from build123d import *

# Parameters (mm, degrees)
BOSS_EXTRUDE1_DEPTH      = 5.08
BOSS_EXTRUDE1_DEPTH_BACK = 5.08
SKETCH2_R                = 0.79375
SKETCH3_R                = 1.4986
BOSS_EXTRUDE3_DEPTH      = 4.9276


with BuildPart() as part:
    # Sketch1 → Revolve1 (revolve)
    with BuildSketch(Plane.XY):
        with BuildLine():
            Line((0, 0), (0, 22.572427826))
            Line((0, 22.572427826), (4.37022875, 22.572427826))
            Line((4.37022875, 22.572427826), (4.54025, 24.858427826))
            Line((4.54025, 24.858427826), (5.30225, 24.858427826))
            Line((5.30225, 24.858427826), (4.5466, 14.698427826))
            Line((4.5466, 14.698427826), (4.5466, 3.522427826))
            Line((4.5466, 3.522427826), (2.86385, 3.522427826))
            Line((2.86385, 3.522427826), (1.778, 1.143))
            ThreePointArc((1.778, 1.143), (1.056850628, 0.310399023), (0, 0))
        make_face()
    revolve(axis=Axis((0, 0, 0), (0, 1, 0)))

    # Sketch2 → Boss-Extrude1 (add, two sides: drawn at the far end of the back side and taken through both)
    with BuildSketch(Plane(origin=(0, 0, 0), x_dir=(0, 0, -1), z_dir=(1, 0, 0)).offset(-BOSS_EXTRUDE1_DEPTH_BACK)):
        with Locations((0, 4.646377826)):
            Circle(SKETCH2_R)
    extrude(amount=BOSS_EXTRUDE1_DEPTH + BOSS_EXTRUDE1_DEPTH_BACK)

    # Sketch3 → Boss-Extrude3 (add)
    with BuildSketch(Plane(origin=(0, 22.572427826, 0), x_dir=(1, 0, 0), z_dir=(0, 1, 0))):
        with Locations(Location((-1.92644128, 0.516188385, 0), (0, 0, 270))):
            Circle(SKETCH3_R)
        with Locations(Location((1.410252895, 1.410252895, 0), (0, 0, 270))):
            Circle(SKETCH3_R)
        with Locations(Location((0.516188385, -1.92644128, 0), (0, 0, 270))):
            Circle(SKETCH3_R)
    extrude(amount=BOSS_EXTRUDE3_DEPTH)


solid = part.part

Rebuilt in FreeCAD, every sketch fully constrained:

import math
import FreeCAD as App
import Part
import Sketcher
Q = App.Units.Quantity

doc = App.newDocument("Part")
body = doc.addObject("PartDesign::Body", "Body")

sketch1 = body.newObject("Sketcher::SketchObject", "Sketch")
sketch1.AttachmentSupport = (doc.getObject("XY_Plane"), [""])
sketch1.MapMode = "FlatFace"
sketch1.addGeometry([
    Part.LineSegment(App.Vector(0, 22.6, 0), App.Vector(0, 0, 0)),
    Part.ArcOfCircle(Part.Circle(App.Vector(0, 2, 0), App.Vector(0, 0, 1), 2), math.radians(-90), math.radians(-25)),
    Part.LineSegment(App.Vector(1.8, 1.1, 0), App.Vector(2.9, 3.5, 0)),
    Part.LineSegment(App.Vector(2.9, 3.5, 0), App.Vector(4.5, 3.5, 0)),
    Part.LineSegment(App.Vector(4.5, 3.5, 0), App.Vector(4.5, 14.7, 0)),
    Part.LineSegment(App.Vector(4.5, 14.7, 0), App.Vector(5.3, 24.9, 0)),
    Part.LineSegment(App.Vector(5.3, 24.9, 0), App.Vector(4.5, 24.9, 0)),
    Part.LineSegment(App.Vector(4.5, 24.9, 0), App.Vector(4.4, 22.6, 0)),
    Part.LineSegment(App.Vector(4.4, 22.6, 0), App.Vector(0, 22.6, 0)),
], False)
sketch1.addConstraint([
    Sketcher.Constraint("Coincident", 0, 2, 1, 1),
    Sketcher.Constraint("Tangent", 1, 2, 2, 1),
    Sketcher.Constraint("Coincident", 2, 2, 3, 1),
    Sketcher.Constraint("Coincident", 3, 2, 4, 1),
    Sketcher.Constraint("Coincident", 4, 2, 5, 1),
    Sketcher.Constraint("Coincident", 5, 2, 6, 1),
    Sketcher.Constraint("Coincident", 6, 2, 7, 1),
    Sketcher.Constraint("Coincident", 7, 2, 8, 1),
    Sketcher.Constraint("Coincident", 8, 2, 0, 1),
    Sketcher.Constraint("Vertical", 0),
    Sketcher.Constraint("Horizontal", 3),
    Sketcher.Constraint("Vertical", 4),
    Sketcher.Constraint("Horizontal", 6),
    Sketcher.Constraint("Horizontal", 8),
    Sketcher.Constraint("Coincident", 0, 2, -1, 1),
    Sketcher.Constraint("PointOnObject", 1, 3, -2),
    Sketcher.Constraint("Parallel", 5, 7),
    Sketcher.Constraint("DistanceX", 6, 2, 6, 1, Q("0.03 in")),
    Sketcher.Constraint("DistanceY", 4, 1, 4, 2, Q("0.44 in")),
    Sketcher.Constraint("DistanceY", 4, 2, 5, 2, Q("0.4 in")),
    Sketcher.Constraint("DistanceX", -1, 1, 1, 2, Q("0.07 in")),
    Sketcher.Constraint("DistanceY", 7, 2, 6, 2, Q("0.09 in")),
    Sketcher.Constraint("DistanceY", -1, 1, 1, 2, Q("0.045 in")),
    Sketcher.Constraint("DistanceX", -1, 1, 3, 2, Q("0.179 in")),
    Sketcher.Constraint("DistanceX", 2, 2, 5, 2, Q("0.096 in")),
    Sketcher.Constraint("DistanceX", 3, 1, 3, 2, 1.68275),
])
revolution = body.newObject("PartDesign::Revolution", "Revolution")
revolution.Profile = sketch1
revolution.ReferenceAxis = (sketch1, ["V_Axis"])
revolution.Angle = 360

sketch2 = body.newObject("Sketcher::SketchObject", "Sketch001")
sketch2.AttachmentSupport = (doc.getObject("YZ_Plane"), [""])
sketch2.MapMode = "FlatFace"
sketch2.addGeometry(Part.Circle(App.Vector(4.6, 0, 0), App.Vector(0, 0, 1), 0.8), False)
sketch2.addConstraint([
    Sketcher.Constraint("PointOnObject", 0, 3, -1),
    Sketcher.Constraint("Diameter", 0, Q("0.0625 in")),
    Sketcher.Constraint("DistanceX", -1, 1, 0, 3, 4.646378),
])
pad1 = body.newObject("PartDesign::Pad", "Pad")
pad1.Profile = sketch2
pad1.Type = "TwoLengths"
pad1.Length = Q("0.2 in")
pad1.Length2 = Q("0.2 in")

sketch3 = body.newObject("Sketcher::SketchObject", "Sketch002")
sketch3.AttachmentSupport = (doc.getObject("XZ_Plane"), [""])
sketch3.MapMode = "FlatFace"
sketch3.AttachmentOffset = App.Placement(App.Vector(0, 0, -22.572428), App.Rotation())
sketch3.addGeometry([
    Part.Circle(App.Vector(-1.9, -0.5, 0), App.Vector(0, 0, 1), 1.5),
    Part.Circle(App.Vector(1.4, -1.4, 0), App.Vector(0, 0, 1), 1.5),
    Part.Circle(App.Vector(0.5, 1.9, 0), App.Vector(0, 0, 1), 1.5),
], False)
sketch3.addConstraint([
    Sketcher.Constraint("Equal", 0, 1),
    Sketcher.Constraint("Equal", 1, 2),
    Sketcher.Constraint("Diameter", 0, Q("0.118 in")),
    Sketcher.Constraint("DistanceX", 0, 3, -1, 1, 1.926441),
    Sketcher.Constraint("DistanceY", 0, 3, -1, 1, 0.516188),
    Sketcher.Constraint("DistanceX", -1, 1, 2, 3, 0.516188),
    Sketcher.Constraint("DistanceY", -1, 1, 2, 3, 1.926441),
    Sketcher.Constraint("DistanceX", -1, 1, 1, 3, 1.410253),
    Sketcher.Constraint("DistanceY", 1, 3, -1, 1, 1.410253),
])
pad2 = body.newObject("PartDesign::Pad", "Pad001")
pad2.Profile = sketch3
pad2.Length = Q("0.194 in")
pad2.Reversed = True

doc.recompute()
